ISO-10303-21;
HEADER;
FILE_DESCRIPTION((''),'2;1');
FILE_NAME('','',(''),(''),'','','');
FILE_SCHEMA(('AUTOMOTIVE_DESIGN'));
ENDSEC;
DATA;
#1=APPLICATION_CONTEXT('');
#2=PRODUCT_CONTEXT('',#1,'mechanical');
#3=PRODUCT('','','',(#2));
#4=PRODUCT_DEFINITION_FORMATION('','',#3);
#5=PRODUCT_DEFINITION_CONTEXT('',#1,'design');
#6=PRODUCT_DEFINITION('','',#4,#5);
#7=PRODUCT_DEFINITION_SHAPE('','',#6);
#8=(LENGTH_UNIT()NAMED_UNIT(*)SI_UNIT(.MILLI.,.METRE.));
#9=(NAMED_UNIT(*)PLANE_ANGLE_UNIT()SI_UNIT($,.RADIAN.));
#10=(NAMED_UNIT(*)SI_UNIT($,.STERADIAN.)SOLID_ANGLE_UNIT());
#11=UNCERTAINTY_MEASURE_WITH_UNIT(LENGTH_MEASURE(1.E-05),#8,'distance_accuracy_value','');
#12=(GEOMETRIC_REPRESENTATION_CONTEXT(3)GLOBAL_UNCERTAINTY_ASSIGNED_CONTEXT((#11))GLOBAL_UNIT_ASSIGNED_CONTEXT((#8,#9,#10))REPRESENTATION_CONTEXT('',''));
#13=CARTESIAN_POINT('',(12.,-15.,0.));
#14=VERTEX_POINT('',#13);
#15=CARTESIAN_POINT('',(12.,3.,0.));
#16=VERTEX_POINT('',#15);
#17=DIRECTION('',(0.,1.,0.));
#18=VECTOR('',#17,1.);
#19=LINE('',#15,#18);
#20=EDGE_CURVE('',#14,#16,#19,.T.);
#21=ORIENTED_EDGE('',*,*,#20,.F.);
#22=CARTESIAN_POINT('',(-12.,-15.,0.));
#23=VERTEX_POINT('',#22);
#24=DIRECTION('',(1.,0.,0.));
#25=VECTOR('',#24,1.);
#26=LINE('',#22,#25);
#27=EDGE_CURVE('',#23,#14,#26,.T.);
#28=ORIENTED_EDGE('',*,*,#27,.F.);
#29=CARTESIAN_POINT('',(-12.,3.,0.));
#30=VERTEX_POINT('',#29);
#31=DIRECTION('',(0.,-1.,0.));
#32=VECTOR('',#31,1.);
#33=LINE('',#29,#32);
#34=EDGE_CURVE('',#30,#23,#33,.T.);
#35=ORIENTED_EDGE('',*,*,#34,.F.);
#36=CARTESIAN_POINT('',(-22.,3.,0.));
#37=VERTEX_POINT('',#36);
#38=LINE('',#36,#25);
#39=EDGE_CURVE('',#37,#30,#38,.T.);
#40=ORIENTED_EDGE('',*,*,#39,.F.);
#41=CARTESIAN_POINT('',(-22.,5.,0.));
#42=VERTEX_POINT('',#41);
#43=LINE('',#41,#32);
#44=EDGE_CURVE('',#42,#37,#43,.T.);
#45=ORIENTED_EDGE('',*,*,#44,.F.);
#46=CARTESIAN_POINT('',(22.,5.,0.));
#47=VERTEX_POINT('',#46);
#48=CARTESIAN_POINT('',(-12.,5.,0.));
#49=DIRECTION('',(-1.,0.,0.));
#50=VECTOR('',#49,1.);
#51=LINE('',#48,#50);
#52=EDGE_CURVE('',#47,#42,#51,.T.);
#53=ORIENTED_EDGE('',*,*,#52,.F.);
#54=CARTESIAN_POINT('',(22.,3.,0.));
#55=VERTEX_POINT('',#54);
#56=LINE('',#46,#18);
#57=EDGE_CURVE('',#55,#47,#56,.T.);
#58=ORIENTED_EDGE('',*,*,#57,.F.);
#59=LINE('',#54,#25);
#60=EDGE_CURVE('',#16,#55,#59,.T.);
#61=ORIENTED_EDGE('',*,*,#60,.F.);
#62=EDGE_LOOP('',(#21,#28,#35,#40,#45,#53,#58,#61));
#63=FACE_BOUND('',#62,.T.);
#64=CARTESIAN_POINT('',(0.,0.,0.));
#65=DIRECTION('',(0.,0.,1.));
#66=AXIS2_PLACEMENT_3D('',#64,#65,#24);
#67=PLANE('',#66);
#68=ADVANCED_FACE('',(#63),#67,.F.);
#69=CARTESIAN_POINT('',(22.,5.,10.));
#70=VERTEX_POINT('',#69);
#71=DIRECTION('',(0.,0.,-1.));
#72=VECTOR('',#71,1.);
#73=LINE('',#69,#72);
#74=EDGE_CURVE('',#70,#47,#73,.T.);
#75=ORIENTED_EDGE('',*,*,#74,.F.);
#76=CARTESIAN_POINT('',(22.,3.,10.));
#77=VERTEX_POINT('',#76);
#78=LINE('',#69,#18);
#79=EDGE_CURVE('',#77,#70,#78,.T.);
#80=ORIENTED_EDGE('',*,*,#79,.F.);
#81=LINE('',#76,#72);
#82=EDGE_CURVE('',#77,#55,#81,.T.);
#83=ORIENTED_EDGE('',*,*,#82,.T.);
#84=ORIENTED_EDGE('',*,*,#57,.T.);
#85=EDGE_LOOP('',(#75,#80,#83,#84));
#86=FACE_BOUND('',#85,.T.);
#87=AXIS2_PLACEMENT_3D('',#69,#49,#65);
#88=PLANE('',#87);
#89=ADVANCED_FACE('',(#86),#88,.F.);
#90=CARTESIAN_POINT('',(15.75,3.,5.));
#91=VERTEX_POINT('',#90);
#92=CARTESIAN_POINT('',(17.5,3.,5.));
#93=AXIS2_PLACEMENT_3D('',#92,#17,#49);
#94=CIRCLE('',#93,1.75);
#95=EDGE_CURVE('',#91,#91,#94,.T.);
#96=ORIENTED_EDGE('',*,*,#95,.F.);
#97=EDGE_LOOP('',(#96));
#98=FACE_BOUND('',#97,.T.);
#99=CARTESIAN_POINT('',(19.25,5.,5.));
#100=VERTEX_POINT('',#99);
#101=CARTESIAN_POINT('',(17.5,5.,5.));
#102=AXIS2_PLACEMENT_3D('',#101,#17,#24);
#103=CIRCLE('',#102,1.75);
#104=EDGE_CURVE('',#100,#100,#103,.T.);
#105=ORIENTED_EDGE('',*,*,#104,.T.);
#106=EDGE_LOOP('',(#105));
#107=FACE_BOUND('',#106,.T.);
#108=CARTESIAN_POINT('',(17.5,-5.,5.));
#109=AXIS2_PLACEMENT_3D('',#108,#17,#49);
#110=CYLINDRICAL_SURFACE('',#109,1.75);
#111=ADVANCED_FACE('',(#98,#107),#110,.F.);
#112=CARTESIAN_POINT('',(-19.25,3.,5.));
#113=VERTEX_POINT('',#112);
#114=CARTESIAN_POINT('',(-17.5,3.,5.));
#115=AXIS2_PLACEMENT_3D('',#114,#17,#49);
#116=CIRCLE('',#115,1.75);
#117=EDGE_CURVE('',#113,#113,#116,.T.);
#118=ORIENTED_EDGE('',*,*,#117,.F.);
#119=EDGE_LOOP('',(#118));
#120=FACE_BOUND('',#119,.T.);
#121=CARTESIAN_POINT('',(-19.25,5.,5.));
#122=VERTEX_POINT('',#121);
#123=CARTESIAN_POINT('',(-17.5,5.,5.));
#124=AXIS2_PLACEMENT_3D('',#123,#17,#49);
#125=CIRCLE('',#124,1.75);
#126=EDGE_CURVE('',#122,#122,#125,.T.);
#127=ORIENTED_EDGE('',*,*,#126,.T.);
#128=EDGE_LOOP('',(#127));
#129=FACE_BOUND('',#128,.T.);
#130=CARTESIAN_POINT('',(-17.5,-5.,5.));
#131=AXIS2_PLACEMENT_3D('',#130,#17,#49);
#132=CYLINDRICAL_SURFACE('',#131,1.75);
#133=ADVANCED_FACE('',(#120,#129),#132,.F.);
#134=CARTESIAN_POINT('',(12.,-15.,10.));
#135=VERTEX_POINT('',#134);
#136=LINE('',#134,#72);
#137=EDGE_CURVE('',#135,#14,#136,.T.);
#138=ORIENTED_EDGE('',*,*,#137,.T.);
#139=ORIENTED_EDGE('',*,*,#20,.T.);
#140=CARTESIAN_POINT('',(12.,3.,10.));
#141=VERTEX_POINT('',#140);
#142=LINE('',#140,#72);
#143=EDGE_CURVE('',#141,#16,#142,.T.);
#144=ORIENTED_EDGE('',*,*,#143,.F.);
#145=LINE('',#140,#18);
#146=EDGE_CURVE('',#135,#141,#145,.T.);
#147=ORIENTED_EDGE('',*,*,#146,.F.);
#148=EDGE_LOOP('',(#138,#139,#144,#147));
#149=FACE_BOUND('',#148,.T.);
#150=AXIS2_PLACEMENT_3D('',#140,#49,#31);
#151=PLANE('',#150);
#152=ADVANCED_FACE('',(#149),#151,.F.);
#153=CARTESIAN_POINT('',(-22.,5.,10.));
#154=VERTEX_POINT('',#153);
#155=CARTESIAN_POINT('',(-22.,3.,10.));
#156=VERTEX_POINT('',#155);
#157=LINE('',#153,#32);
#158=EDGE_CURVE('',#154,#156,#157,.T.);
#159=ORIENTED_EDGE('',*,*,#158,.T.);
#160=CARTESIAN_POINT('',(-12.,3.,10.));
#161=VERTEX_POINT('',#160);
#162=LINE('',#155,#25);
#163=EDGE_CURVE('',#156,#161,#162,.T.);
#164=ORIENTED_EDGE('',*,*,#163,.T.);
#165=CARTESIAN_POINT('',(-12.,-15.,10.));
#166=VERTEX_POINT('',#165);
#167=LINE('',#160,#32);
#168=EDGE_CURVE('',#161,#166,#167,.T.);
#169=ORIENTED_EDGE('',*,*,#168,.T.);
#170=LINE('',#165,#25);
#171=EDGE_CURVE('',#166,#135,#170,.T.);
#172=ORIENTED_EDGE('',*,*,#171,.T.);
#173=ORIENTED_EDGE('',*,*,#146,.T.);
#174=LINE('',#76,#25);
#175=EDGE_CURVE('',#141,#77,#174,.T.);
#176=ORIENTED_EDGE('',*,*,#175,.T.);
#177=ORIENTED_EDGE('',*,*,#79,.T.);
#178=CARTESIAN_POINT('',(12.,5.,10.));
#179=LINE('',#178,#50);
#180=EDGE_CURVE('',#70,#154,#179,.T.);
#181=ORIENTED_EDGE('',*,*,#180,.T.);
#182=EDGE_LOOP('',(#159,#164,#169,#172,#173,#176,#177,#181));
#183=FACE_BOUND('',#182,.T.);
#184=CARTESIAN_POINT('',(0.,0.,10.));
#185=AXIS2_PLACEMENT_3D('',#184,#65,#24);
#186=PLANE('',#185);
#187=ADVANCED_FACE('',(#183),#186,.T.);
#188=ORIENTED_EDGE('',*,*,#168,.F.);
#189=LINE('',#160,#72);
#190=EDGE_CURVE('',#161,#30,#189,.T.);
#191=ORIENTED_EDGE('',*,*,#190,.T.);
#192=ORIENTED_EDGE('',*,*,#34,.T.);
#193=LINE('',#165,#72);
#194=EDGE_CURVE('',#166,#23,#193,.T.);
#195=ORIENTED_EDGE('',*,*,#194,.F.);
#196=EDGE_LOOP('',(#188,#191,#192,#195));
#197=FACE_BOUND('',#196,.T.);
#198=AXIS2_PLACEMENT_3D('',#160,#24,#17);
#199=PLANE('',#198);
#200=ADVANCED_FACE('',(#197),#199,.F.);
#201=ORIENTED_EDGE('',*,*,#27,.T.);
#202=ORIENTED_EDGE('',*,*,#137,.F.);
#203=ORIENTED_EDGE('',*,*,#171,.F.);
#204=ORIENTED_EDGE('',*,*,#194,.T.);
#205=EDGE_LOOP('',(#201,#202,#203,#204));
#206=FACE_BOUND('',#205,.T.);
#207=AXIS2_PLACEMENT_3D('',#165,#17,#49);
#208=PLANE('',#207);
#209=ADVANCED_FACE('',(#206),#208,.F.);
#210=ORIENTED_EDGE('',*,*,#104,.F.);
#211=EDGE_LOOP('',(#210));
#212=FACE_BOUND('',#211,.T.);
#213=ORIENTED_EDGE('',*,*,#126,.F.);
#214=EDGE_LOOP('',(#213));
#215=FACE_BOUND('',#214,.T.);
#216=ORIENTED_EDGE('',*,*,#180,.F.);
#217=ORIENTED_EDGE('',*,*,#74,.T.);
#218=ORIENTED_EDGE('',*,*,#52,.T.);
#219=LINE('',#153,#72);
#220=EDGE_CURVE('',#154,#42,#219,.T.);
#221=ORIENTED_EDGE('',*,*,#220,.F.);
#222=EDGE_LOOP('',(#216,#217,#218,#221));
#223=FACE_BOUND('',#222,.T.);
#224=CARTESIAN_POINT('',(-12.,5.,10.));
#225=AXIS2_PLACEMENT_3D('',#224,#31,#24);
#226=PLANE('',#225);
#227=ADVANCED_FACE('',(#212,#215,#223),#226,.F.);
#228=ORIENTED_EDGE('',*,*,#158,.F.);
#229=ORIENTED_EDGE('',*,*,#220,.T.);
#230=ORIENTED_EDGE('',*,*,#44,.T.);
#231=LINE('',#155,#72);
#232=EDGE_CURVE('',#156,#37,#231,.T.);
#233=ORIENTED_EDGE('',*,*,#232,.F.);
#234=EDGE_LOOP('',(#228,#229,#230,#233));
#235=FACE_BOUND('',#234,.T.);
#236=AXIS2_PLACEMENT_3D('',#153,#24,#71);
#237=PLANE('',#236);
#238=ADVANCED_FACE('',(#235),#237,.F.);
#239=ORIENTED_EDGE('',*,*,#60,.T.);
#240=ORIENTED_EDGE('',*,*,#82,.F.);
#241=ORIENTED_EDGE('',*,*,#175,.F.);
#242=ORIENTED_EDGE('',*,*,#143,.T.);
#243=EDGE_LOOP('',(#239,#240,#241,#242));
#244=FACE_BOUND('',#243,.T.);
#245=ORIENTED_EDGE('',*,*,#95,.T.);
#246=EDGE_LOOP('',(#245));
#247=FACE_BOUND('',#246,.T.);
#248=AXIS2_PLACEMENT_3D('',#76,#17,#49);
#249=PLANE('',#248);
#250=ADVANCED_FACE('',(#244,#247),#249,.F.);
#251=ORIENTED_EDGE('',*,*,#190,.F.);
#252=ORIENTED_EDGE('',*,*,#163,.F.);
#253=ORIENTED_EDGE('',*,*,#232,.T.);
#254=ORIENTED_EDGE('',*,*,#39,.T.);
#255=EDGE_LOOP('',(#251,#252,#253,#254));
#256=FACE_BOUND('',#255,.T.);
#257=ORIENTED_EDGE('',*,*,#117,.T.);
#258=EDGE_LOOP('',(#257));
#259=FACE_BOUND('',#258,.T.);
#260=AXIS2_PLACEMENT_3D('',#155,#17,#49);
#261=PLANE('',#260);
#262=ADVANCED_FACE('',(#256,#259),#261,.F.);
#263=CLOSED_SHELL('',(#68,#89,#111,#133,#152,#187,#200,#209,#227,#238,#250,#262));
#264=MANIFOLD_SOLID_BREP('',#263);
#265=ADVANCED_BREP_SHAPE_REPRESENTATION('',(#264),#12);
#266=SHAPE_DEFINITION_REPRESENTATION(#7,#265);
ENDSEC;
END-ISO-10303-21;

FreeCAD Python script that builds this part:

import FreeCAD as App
import Part
import Sketcher
from FreeCAD import Vector

doc = App.newDocument("Part")
body = doc.addObject("PartDesign::Body", "Body")

# Sketch on XY plane
sketch1 = body.newObject("Sketcher::SketchObject", "Sketch")
sketch1.AttachmentSupport = (doc.getObject("XY_Plane"), [""])
sketch1.MapMode = "FlatFace"
sketch1.addGeometry([
    Part.LineSegment(Vector(-22, 5, 0), Vector(-22, 3, 0)),  # 0
    Part.LineSegment(Vector(-22, 3, 0), Vector(-12, 3, 0)),  # 1
    Part.LineSegment(Vector(-12, 3, 0), Vector(-12, -15, 0)),  # 2
    Part.LineSegment(Vector(-12, -15, 0), Vector(12, -15, 0)),  # 3
    Part.LineSegment(Vector(12, -15, 0), Vector(12, 3, 0)),  # 4
    Part.LineSegment(Vector(12, 3, 0), Vector(22, 3, 0)),  # 5
    Part.LineSegment(Vector(22, 3, 0), Vector(22, 5, 0)),  # 6
    Part.LineSegment(Vector(22, 5, 0), Vector(-22, 5, 0)),  # 7
], False)
sketch1.addConstraint([
    Sketcher.Constraint("Coincident", 0, 2, 1, 1),
    Sketcher.Constraint("Coincident", 1, 2, 2, 1),
    Sketcher.Constraint("Coincident", 2, 2, 3, 1),
    Sketcher.Constraint("Coincident", 3, 2, 4, 1),
    Sketcher.Constraint("Coincident", 4, 2, 5, 1),
    Sketcher.Constraint("Coincident", 5, 2, 6, 1),
    Sketcher.Constraint("Coincident", 6, 2, 7, 1),
    Sketcher.Constraint("Coincident", 7, 2, 0, 1),
    Sketcher.Constraint("Vertical", 0),
    Sketcher.Constraint("Horizontal", 1),
    Sketcher.Constraint("Vertical", 2),
    Sketcher.Constraint("Horizontal", 3),
    Sketcher.Constraint("Vertical", 4),
    Sketcher.Constraint("Horizontal", 5),
    Sketcher.Constraint("Vertical", 6),
    Sketcher.Constraint("Horizontal", 7),
    Sketcher.Constraint("Symmetric", 1, 2, 4, 2, -2),
    Sketcher.Constraint("Equal", 1, 5),
    Sketcher.Constraint("DistanceX", 1, 1, 1, 2, 10.0),
    Sketcher.Constraint("DistanceX", 3, 1, 3, 2, 24.0),
    Sketcher.Constraint("DistanceY", 0, 2, 0, 1, 2.0),
    Sketcher.Constraint("DistanceY", 2, 2, 2, 1, 18.0),
    Sketcher.Constraint("DistanceY", -1, 1, 0, 2, 3.0),
])
pad1 = body.newObject("PartDesign::Pad", "Pad")
pad1.Profile = sketch1
pad1.Length = 10

# Sketch on XZ plane
sketch2 = body.newObject("Sketcher::SketchObject", "Sketch001")
sketch2.AttachmentSupport = (doc.getObject("XZ_Plane"), [""])
sketch2.MapMode = "FlatFace"
sketch2.AttachmentOffset = App.Placement(Vector(0, 0, -5), App.Rotation())
sketch2.addGeometry([
    Part.Circle(Vector(-17.5, 5, 0), Vector(0, 0, 1), 1.8),
    Part.Circle(Vector(17.5, 5, 0), Vector(0, 0, 1), 1.8),
], False)
sketch2.addConstraint([
    Sketcher.Constraint("Equal", 0, 1),
    Sketcher.Constraint("Symmetric", 0, 3, 1, 3, -2),
    Sketcher.Constraint("Diameter", 0, 3.5),
    Sketcher.Constraint("DistanceY", -1, 1, 0, 3, 5.0),
    Sketcher.Constraint("DistanceX", 0, 3, 1, 3, 35.0),
])
pocket1 = body.newObject("PartDesign::Pocket", "Pocket")
pocket1.Profile = sketch2
pocket1.Length = 10
pocket1.Reversed = True

doc.recompute()
